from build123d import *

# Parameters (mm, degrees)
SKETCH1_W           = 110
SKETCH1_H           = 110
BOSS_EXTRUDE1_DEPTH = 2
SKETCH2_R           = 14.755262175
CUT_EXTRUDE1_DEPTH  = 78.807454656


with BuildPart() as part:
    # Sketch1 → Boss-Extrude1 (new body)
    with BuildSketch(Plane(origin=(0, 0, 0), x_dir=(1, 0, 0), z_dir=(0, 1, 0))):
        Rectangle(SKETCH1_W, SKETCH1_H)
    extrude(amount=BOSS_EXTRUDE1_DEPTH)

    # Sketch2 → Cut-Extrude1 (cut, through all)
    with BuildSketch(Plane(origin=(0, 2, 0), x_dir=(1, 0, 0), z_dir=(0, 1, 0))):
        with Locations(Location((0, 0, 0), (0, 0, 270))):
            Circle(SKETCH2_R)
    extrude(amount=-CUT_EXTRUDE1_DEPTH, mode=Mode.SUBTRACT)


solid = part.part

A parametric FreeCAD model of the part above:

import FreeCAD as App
import Part
import Sketcher


def add_polygon(sketch, points):
    """Adds a closed chain of lines whose ends are joined by coincident constraints."""
    first, n = sketch.GeometryCount, len(points)
    for a, b in zip(points, points[1:] + points[:1]):
        sketch.addGeometry(Part.LineSegment(App.Vector(*a, 0), App.Vector(*b, 0)), False)
    for i in range(n):
        sketch.addConstraint(Sketcher.Constraint("Coincident", first + i, 2, first + (i + 1) % n, 1))

doc = App.newDocument("Part")
body = doc.addObject("PartDesign::Body", "Body")

# Sketch on XZ plane
sketch1 = body.newObject("Sketcher::SketchObject", "Sketch")
sketch1.AttachmentSupport = (doc.getObject("XZ_Plane"), [""])
sketch1.MapMode = "FlatFace"
add_polygon(sketch1, [(-55, -55), (-55, 55), (55, 55), (55, -55)])  # lines 0-3
sketch1.addConstraint([
    Sketcher.Constraint("Vertical", 0),
    Sketcher.Constraint("Horizontal", 1),
    Sketcher.Constraint("Vertical", 2),
    Sketcher.Constraint("Horizontal", 3),
    Sketcher.Constraint("Symmetric", 0, 2, 2, 2, -1, 1),
    Sketcher.Constraint("Equal", 3, 0),
    Sketcher.Constraint("DistanceX", 1, 1, 1, 2, 110.0),
])
pad1 = body.newObject("PartDesign::Pad", "Pad")
pad1.Profile = sketch1
pad1.Length = 2
pad1.Reversed = True

# Sketch on XZ plane
sketch2 = body.newObject("Sketcher::SketchObject", "Sketch001")
sketch2.AttachmentSupport = (doc.getObject("XZ_Plane"), [""])
sketch2.MapMode = "FlatFace"
sketch2.AttachmentOffset = App.Placement(App.Vector(0, 0, -2), App.Rotation())
sketch2.addGeometry(Part.Circle(App.Vector(0, 0, 0), App.Vector(0, 0, 1), 15), False)
sketch2.addConstraint([
    Sketcher.Constraint("Coincident", 0, 3, -1, 1),
    Sketcher.Constraint("Diameter", 0, 29.510524),
])
pocket1 = body.newObject("PartDesign::Pocket", "Pocket")
pocket1.Profile = sketch2
pocket1.Type = "ThroughAll"
pocket1.Reversed = True

doc.recompute()
